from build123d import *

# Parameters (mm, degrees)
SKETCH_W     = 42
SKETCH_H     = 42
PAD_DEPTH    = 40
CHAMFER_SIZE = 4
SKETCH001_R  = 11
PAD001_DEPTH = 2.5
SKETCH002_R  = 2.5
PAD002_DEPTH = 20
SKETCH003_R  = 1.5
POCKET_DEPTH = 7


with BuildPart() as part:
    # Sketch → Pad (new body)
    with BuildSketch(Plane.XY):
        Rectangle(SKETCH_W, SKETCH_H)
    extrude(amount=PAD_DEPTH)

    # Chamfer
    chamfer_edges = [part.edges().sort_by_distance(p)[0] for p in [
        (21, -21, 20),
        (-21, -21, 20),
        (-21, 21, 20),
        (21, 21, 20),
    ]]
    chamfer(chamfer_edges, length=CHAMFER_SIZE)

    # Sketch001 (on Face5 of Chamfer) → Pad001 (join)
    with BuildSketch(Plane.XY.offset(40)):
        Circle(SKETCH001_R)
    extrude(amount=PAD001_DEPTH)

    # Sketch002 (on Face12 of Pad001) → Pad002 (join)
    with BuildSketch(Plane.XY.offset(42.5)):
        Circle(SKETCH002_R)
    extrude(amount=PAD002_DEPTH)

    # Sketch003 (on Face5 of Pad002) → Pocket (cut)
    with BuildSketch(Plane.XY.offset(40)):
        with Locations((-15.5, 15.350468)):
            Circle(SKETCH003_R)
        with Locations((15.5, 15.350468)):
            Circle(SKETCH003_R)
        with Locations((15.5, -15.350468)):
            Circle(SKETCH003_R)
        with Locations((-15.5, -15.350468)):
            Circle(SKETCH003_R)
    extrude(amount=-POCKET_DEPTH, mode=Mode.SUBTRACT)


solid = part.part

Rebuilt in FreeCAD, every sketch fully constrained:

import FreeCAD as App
import Part
import Sketcher
from FreeCAD import Vector


def edges_at(feature, points):
    """Names of the edges that pass closest to the given points."""
    edges = feature.Shape.Edges
    near = lambda p: min(range(len(edges)), key=lambda i: edges[i].distToShape(Part.Vertex(*p))[0])
    return sorted({f"Edge{near(p) + 1}" for p in points})


def add_polygon(sketch, points):
    """Adds a closed chain of lines whose ends are joined by coincident constraints."""
    first, n = sketch.GeometryCount, len(points)
    for a, b in zip(points, points[1:] + points[:1]):
        sketch.addGeometry(Part.LineSegment(App.Vector(*a, 0), App.Vector(*b, 0)), False)
    for i in range(n):
        sketch.addConstraint(Sketcher.Constraint("Coincident", first + i, 2, first + (i + 1) % n, 1))

doc = App.newDocument("Part")
body = doc.addObject("PartDesign::Body", "Body")

# Sketch on XY plane
sketch1 = doc.addObject("Sketcher::SketchObject", "Sketch")
body.addObject(sketch1)
sketch1.AttachmentSupport = (doc.XY_Plane, [""])
sketch1.MapMode = "FlatFace"
add_polygon(sketch1, [(-21, 21), (-21, -21), (21, -21), (21, 21)])  # lines 0-3
sketch1.addConstraint(Sketcher.Constraint("Vertical", 0))
sketch1.addConstraint(Sketcher.Constraint("Horizontal", 1))
sketch1.addConstraint(Sketcher.Constraint("Vertical", 2))
sketch1.addConstraint(Sketcher.Constraint("Horizontal", 3))
sketch1.addConstraint(Sketcher.Constraint("Symmetric", 0, 2, 2, 2, -1, 1))
sketch1.addConstraint(Sketcher.Constraint("Equal", 3, 0))
sketch1.addConstraint(Sketcher.Constraint("DistanceX", 1, 1, 1, 2, 42.0))
pad1 = doc.addObject("PartDesign::Pad", "Pad")
body.addObject(pad1)
pad1.Profile = sketch1
pad1.Length = 40
doc.recompute()

chamfer = doc.addObject("PartDesign::Chamfer", "Chamfer")
body.addObject(chamfer)
chamfer.Base = (pad1, edges_at(pad1, [
    (21, -21, 20),
    (-21, -21, 20),
    (-21, 21, 20),
    (21, 21, 20),
]))
chamfer.Size = 4

# Sketch on XY plane
sketch2 = doc.addObject("Sketcher::SketchObject", "Sketch001")
body.addObject(sketch2)
sketch2.AttachmentSupport = (doc.XY_Plane, [""])
sketch2.MapMode = "FlatFace"
sketch2.AttachmentOffset = App.Placement(Vector(0, 0, 40), App.Rotation())
sketch2.addGeometry(Part.Circle(Vector(0, 0, 0), Vector(0, 0, 1), 11), False)
sketch2.addConstraint(Sketcher.Constraint("Coincident", 0, 3, -1, 1))
sketch2.addConstraint(Sketcher.Constraint("Diameter", 0, 22.0))
pad2 = doc.addObject("PartDesign::Pad", "Pad001")
body.addObject(pad2)
pad2.Profile = sketch2
pad2.Length = 2.5

# Sketch on XY plane
sketch3 = doc.addObject("Sketcher::SketchObject", "Sketch002")
body.addObject(sketch3)
sketch3.AttachmentSupport = (doc.XY_Plane, [""])
sketch3.MapMode = "FlatFace"
sketch3.AttachmentOffset = App.Placement(Vector(0, 0, 42.5), App.Rotation())
sketch3.addGeometry(Part.Circle(Vector(0, 0, 0), Vector(0, 0, 1), 2.5), False)
sketch3.addConstraint(Sketcher.Constraint("Coincident", 0, 3, -1, 1))
sketch3.addConstraint(Sketcher.Constraint("Diameter", 0, 5.0))
pad3 = doc.addObject("PartDesign::Pad", "Pad002")
body.addObject(pad3)
pad3.Profile = sketch3
pad3.Length = 20

# Sketch on XY plane
sketch4 = doc.addObject("Sketcher::SketchObject", "Sketch003")
body.addObject(sketch4)
sketch4.AttachmentSupport = (doc.XY_Plane, [""])
sketch4.MapMode = "FlatFace"
sketch4.AttachmentOffset = App.Placement(Vector(0, 0, 40), App.Rotation())
sketch4.addGeometry(Part.Circle(Vector(-15.5, 15.4, 0), Vector(0, 0, 1), 1.5), False)
sketch4.addGeometry(Part.Circle(Vector(15.5, 15.4, 0), Vector(0, 0, 1), 1.5), False)
sketch4.addGeometry(Part.Circle(Vector(15.5, -15.4, 0), Vector(0, 0, 1), 1.5), False)
sketch4.addGeometry(Part.Circle(Vector(-15.5, -15.4, 0), Vector(0, 0, 1), 1.5), False)
sketch4.addConstraint(Sketcher.Constraint("Equal", 0, 1))
sketch4.addConstraint(Sketcher.Constraint("Equal", 1, 2))
sketch4.addConstraint(Sketcher.Constraint("Equal", 2, 3))
sketch4.addConstraint(Sketcher.Constraint("Symmetric", 0, 3, 2, 3, -1, 1))
sketch4.addConstraint(Sketcher.Constraint("Symmetric", 1, 3, 3, 3, -1, 1))
sketch4.addConstraint(Sketcher.Constraint("Symmetric", 0, 3, 1, 3, -2))
sketch4.addConstraint(Sketcher.Constraint("Diameter", 0, 3.0))
sketch4.addConstraint(Sketcher.Constraint("DistanceX", 0, 3, 1, 3, 31.0))
sketch4.addConstraint(Sketcher.Constraint("DistanceY", -1, 1, 0, 3, 15.350468))
pocket1 = doc.addObject("PartDesign::Pocket", "Pocket")
body.addObject(pocket1)
pocket1.Profile = sketch4
pocket1.Length = 7

doc.recompute()
